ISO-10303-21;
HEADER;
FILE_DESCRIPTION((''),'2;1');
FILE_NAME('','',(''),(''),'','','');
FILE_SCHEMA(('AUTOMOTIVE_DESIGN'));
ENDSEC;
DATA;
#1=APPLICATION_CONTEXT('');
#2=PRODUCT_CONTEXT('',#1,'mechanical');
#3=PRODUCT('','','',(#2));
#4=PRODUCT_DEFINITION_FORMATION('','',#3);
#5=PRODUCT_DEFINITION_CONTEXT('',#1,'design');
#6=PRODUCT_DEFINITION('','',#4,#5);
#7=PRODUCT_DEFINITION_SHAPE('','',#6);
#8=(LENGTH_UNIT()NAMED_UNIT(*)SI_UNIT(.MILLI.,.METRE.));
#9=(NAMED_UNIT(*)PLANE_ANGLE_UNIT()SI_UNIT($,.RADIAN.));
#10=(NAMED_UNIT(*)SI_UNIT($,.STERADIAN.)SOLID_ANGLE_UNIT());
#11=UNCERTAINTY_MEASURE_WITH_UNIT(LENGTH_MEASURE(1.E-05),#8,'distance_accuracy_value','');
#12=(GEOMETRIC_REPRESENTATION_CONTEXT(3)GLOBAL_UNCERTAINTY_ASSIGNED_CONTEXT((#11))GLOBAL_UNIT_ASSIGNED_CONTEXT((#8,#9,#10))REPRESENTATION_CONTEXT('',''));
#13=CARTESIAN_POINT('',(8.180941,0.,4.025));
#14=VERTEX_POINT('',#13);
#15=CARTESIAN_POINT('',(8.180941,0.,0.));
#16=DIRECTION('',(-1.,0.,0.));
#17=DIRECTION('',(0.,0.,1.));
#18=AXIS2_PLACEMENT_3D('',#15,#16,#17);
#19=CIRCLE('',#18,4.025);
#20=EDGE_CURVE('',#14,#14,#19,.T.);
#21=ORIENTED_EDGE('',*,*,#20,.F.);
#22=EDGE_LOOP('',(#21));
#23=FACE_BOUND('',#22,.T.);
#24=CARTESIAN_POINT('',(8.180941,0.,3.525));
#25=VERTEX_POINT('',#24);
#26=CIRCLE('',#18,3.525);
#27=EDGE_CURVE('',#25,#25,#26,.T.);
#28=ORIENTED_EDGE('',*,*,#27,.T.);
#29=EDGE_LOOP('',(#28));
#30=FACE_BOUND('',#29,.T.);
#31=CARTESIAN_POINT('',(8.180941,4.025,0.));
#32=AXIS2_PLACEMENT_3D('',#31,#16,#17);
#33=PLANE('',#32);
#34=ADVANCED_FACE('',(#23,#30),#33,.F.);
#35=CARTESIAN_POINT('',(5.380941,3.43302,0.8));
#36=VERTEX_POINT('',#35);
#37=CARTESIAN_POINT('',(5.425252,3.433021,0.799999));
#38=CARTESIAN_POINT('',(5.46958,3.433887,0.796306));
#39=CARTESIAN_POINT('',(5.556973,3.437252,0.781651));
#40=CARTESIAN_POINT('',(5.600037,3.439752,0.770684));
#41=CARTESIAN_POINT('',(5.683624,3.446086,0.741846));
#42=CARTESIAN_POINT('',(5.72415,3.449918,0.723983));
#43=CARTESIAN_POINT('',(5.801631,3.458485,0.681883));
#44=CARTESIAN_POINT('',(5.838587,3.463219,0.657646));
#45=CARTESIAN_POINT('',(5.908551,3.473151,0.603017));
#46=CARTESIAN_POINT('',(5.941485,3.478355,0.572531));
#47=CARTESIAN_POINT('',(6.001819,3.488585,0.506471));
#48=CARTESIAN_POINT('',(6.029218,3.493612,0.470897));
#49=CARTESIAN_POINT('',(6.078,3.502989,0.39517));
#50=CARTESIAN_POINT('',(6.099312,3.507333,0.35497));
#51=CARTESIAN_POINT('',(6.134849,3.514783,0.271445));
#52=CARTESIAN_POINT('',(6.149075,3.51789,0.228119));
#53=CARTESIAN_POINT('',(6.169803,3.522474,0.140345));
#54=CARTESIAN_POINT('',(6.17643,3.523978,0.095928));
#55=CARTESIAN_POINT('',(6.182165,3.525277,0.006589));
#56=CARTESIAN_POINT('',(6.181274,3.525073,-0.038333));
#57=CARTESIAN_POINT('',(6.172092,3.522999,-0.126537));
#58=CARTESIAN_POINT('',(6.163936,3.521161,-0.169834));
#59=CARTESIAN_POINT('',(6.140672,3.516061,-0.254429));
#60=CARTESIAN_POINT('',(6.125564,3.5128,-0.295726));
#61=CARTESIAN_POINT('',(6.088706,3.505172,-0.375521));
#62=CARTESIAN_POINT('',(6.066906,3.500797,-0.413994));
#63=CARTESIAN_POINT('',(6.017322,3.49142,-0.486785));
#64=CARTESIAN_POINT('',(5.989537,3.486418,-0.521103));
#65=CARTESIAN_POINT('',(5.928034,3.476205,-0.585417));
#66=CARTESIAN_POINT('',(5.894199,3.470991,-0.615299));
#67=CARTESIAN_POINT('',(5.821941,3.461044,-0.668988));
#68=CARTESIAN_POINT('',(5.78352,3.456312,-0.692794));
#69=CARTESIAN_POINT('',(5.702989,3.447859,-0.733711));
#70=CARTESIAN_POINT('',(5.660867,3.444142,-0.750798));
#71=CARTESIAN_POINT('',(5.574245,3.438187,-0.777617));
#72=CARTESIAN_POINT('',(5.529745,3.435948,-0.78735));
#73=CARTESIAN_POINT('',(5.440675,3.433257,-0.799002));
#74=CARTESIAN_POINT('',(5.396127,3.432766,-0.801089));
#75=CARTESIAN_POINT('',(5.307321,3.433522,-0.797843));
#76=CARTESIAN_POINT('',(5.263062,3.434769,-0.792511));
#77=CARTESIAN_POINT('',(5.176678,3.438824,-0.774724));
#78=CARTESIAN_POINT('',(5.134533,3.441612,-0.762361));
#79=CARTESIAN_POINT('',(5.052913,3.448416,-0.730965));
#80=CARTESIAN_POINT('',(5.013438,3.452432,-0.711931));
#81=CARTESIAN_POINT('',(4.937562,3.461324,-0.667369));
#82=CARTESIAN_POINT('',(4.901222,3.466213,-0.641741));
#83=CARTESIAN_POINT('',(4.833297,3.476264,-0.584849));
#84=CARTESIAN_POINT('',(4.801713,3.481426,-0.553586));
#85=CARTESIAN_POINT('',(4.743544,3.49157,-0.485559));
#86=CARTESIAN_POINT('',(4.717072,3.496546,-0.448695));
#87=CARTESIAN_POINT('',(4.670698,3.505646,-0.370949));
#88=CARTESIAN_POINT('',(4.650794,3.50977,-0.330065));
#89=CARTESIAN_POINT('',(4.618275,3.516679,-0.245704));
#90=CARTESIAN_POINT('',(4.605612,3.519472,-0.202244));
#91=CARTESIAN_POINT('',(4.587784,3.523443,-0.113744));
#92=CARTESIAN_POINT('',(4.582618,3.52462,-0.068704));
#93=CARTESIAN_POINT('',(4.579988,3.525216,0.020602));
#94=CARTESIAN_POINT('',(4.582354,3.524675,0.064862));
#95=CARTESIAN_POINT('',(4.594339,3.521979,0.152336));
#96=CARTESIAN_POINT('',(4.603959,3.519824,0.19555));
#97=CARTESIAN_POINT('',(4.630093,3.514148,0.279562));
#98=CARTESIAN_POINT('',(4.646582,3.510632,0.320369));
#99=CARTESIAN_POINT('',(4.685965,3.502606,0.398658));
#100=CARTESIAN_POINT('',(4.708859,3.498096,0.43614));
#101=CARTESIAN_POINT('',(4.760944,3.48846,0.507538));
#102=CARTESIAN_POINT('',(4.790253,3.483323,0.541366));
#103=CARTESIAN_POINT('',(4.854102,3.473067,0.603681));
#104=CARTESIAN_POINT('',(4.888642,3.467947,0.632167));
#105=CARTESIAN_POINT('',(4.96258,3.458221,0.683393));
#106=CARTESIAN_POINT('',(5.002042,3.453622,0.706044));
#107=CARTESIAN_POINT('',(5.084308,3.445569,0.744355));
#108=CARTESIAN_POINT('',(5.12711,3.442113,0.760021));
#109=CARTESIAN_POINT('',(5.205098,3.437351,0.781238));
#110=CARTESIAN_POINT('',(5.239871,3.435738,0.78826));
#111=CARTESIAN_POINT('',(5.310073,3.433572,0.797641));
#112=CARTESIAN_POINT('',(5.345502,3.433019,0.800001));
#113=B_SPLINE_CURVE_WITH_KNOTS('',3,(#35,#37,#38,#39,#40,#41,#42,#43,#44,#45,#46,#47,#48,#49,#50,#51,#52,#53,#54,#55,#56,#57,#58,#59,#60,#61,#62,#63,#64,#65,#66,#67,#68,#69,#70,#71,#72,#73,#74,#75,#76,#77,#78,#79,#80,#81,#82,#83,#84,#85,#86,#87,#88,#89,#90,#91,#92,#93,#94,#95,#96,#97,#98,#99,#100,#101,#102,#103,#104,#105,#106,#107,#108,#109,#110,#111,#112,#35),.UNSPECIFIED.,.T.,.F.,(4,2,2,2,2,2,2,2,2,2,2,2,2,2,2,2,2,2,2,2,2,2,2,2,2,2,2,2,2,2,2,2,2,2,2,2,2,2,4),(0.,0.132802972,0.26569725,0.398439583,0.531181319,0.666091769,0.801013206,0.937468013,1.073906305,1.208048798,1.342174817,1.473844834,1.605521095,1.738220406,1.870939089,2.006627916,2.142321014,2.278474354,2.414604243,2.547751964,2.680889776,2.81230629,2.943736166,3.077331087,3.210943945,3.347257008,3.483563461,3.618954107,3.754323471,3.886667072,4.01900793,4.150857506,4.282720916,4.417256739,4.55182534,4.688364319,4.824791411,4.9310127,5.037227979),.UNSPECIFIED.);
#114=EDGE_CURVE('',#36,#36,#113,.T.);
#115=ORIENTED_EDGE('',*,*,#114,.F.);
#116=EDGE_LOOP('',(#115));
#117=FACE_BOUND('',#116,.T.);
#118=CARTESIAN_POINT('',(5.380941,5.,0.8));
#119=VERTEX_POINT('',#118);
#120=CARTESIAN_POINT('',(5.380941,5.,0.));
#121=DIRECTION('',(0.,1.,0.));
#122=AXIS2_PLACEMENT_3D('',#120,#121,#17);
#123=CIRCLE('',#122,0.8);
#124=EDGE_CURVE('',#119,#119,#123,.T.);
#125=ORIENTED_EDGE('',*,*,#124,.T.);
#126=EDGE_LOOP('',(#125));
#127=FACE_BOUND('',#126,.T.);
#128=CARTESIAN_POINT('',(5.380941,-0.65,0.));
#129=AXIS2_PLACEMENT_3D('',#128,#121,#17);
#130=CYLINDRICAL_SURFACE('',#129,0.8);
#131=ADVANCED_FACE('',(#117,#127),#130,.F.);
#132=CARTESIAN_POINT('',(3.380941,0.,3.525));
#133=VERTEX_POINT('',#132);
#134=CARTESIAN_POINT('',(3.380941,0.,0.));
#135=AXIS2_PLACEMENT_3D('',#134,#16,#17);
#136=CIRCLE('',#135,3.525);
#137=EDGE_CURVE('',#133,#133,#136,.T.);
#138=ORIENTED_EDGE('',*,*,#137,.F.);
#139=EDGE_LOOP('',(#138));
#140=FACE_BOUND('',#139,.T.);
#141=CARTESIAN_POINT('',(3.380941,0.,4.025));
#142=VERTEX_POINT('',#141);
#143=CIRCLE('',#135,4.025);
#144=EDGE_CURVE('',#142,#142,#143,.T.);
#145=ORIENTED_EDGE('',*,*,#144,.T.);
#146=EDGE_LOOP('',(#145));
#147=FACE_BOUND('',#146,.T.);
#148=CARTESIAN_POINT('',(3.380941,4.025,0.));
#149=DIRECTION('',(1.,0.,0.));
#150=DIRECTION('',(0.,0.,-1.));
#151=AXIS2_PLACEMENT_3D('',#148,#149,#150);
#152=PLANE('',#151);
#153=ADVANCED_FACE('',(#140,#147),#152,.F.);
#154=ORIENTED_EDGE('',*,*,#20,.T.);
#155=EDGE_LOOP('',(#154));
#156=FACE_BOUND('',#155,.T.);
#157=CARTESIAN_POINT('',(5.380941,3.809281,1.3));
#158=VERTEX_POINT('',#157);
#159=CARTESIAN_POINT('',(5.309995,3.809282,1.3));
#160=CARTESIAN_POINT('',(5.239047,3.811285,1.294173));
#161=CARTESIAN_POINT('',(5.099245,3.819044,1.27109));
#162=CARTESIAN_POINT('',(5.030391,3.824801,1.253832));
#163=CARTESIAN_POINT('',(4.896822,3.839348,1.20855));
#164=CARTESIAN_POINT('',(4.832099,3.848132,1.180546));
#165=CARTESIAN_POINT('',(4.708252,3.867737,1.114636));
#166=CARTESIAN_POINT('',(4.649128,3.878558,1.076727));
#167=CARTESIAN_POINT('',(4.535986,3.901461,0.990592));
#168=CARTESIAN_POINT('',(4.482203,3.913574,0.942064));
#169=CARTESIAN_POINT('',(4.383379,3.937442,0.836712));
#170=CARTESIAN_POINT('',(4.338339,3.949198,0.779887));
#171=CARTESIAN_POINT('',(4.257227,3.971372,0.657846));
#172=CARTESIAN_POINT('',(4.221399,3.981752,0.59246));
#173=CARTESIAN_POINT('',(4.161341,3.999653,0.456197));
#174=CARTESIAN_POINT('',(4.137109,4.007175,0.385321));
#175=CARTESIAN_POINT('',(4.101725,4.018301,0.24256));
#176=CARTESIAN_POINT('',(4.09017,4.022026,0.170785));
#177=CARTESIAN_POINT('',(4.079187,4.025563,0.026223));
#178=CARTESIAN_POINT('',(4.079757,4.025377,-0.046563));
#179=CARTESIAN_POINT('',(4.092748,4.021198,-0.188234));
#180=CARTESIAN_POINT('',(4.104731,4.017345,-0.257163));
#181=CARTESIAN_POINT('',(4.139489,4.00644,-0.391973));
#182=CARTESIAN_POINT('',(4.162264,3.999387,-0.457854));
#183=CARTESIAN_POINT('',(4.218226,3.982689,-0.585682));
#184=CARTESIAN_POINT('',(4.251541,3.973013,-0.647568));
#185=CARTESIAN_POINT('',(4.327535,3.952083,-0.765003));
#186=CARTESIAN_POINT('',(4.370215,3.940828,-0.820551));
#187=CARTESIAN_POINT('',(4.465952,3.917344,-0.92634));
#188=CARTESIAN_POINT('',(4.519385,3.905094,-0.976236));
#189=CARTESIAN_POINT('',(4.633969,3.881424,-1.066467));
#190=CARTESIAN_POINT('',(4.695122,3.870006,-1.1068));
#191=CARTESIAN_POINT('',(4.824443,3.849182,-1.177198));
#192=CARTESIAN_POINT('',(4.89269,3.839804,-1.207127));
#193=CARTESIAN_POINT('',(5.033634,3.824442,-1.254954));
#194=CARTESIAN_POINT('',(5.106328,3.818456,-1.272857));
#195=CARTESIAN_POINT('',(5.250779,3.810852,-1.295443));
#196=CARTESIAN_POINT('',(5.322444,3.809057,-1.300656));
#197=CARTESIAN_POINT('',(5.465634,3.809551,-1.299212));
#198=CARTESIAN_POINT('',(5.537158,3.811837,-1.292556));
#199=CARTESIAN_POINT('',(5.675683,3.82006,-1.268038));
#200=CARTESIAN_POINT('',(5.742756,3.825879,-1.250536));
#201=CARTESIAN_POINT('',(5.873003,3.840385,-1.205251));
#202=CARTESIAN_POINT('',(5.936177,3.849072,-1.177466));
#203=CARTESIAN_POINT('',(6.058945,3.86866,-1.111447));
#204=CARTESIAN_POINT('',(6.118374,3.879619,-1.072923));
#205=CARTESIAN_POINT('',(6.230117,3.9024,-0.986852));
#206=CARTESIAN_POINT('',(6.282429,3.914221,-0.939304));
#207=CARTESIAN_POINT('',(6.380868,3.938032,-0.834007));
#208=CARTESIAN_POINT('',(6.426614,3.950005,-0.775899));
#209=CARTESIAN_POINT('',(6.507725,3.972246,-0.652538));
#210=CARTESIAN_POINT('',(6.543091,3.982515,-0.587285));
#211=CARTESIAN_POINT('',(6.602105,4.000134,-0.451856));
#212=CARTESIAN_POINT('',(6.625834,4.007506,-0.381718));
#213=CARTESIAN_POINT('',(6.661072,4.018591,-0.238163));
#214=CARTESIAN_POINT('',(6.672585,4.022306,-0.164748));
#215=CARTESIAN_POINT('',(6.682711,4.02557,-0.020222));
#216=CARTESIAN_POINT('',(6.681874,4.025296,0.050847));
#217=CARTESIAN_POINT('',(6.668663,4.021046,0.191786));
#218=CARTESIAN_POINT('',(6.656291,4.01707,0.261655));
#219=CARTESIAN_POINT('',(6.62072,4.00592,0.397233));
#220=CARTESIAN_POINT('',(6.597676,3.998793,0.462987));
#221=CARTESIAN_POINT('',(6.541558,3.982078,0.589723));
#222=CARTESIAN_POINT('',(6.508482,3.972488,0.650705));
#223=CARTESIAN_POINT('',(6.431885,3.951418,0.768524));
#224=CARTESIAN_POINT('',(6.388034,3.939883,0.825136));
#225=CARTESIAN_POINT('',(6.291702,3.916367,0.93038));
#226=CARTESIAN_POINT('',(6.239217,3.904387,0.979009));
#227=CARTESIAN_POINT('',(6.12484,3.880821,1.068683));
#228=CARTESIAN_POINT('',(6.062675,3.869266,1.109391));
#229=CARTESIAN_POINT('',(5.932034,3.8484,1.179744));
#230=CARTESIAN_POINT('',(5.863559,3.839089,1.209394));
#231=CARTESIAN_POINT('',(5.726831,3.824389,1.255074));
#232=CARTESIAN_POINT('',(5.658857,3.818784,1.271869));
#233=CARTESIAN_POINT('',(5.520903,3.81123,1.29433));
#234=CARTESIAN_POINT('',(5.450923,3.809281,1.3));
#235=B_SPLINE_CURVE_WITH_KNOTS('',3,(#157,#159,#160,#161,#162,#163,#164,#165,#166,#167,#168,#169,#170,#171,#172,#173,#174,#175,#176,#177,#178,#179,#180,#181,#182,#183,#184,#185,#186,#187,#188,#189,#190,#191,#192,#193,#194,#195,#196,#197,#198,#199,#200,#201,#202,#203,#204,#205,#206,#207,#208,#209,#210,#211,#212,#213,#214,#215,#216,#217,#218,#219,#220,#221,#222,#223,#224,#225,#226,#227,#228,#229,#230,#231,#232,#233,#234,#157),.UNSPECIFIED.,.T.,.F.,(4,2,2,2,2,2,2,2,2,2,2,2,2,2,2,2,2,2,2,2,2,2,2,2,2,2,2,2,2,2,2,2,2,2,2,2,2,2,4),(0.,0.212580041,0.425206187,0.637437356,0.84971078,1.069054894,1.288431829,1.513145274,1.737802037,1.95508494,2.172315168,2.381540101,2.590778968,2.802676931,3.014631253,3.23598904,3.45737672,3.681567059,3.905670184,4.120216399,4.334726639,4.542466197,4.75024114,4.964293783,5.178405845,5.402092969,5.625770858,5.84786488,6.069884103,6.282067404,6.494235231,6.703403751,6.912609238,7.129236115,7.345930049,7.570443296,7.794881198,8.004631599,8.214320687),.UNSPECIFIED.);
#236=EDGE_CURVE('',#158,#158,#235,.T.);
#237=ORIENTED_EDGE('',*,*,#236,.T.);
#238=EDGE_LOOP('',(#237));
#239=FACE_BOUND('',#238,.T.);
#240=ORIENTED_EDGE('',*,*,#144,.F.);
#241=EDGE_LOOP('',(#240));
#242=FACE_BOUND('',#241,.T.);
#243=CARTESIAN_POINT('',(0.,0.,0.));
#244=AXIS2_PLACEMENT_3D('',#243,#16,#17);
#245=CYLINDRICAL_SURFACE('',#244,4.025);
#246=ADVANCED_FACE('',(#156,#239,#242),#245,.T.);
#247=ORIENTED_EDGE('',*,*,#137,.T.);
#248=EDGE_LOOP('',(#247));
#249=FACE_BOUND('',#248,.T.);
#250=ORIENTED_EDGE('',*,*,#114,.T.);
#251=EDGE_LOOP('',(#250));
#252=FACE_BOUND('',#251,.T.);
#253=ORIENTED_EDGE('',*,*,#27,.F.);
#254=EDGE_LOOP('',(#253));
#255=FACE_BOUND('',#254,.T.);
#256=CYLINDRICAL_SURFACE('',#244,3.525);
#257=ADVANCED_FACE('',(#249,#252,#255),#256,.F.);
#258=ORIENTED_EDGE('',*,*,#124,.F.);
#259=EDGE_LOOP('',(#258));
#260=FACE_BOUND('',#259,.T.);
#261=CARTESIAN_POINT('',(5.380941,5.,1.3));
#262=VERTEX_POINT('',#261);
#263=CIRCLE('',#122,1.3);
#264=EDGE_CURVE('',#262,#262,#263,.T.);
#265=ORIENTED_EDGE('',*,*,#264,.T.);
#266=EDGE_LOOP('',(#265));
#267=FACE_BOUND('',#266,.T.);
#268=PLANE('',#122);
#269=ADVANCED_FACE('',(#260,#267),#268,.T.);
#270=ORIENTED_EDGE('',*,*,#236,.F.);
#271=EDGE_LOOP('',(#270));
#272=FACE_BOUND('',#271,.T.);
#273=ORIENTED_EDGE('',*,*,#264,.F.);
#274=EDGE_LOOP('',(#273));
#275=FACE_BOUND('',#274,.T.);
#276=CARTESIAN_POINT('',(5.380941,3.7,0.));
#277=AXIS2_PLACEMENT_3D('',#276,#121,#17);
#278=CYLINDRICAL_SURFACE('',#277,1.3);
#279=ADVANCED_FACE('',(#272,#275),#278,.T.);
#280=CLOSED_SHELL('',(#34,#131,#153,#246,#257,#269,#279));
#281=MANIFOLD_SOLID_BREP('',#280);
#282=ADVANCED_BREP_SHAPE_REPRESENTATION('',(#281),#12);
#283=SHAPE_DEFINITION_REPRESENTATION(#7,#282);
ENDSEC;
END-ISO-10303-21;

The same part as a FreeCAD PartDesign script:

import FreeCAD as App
import Part
import Sketcher
from FreeCAD import Vector

doc = App.newDocument("Part")
params = doc.addObject("Spreadsheet::Sheet", "Params")
for row, (alias, value) in enumerate([
    ("sketch1_width", "4.8 mm"),
    ("sketch1_height", "0.5 mm"),
    ("revolution_angle", "360 deg"),
    ("sketch2_diameter", "2.6 mm"),
    ("pad1_length", "1.3 mm"),
    ("sketch3_diameter", "1.6 mm"),
    ("pocket1_length", "11.3 mm"),
], start=1):
    params.set(f"A{row}", alias)
    params.set(f"B{row}", "=" + value)
    params.setAlias(f"B{row}", alias)

body = doc.addObject("PartDesign::Body", "Body")

# Sketch on XY plane
sketch1 = body.newObject("Sketcher::SketchObject", "Sketch")
sketch1.AttachmentSupport = (doc.getObject("XY_Plane"), [""])
sketch1.MapMode = "FlatFace"
sketch1.addGeometry([
    Part.LineSegment(Vector(3.4, 3.5, 0), Vector(8.2, 3.5, 0)),
    Part.LineSegment(Vector(8.2, 3.5, 0), Vector(8.2, 4, 0)),
    Part.LineSegment(Vector(8.2, 4, 0), Vector(3.4, 4, 0)),
    Part.LineSegment(Vector(3.4, 4, 0), Vector(3.4, 3.5, 0)),
], False)
sketch1.addConstraint([
    Sketcher.Constraint("Coincident", 0, 2, 1, 1),
    Sketcher.Constraint("Coincident", 1, 2, 2, 1),
    Sketcher.Constraint("Coincident", 2, 2, 3, 1),
    Sketcher.Constraint("Coincident", 3, 2, 0, 1),
    Sketcher.Constraint("Horizontal", 0),
    Sketcher.Constraint("Vertical", 1),
    Sketcher.Constraint("Horizontal", 2),
    Sketcher.Constraint("Vertical", 3),
    Sketcher.Constraint("DistanceX", 0, 1, 0, 2, 4.8),
    Sketcher.Constraint("DistanceY", 1, 1, 1, 2, 0.5),
    Sketcher.Constraint("DistanceY", -1, 1, 0, 2, 3.525),
    Sketcher.Constraint("DistanceX", -1, 1, 0, 2, 8.180941),
])
sketch1.setExpression("Constraints[8]", "Params.sketch1_width")
sketch1.setExpression("Constraints[9]", "Params.sketch1_height")
revolution = body.newObject("PartDesign::Revolution", "Revolution")
revolution.Profile = sketch1
revolution.ReferenceAxis = (sketch1, ["H_Axis"])
revolution.setExpression("Angle", "Params.revolution_angle")

# Sketch on XZ plane
sketch2 = body.newObject("Sketcher::SketchObject", "Sketch001")
sketch2.AttachmentSupport = (doc.getObject("XZ_Plane"), [""])
sketch2.MapMode = "FlatFace"
sketch2.AttachmentOffset = App.Placement(Vector(0, 0, -5), App.Rotation())
sketch2.addGeometry(Part.Circle(Vector(5.4, 0, 0), Vector(0, 0, 1), 1.3), False)
sketch2.addConstraint([
    Sketcher.Constraint("PointOnObject", 0, 3, -1),
    Sketcher.Constraint("Diameter", 0, 2.6),
    Sketcher.Constraint("DistanceX", -1, 1, 0, 3, 5.380941),
])
sketch2.setExpression("Constraints[1]", "Params.sketch2_diameter")
pad1 = body.newObject("PartDesign::Pad", "Pad")
pad1.Profile = sketch2
pad1.setExpression("Length", "Params.pad1_length")

# Sketch on XZ plane
sketch3 = body.newObject("Sketcher::SketchObject", "Sketch002")
sketch3.AttachmentSupport = (doc.getObject("XZ_Plane"), [""])
sketch3.MapMode = "FlatFace"
sketch3.AttachmentOffset = App.Placement(Vector(0, 0, -5), App.Rotation())
sketch3.addGeometry(Part.Circle(Vector(5.4, 0, 0), Vector(0, 0, 1), 0.8), False)
sketch3.addConstraint([
    Sketcher.Constraint("PointOnObject", 0, 3, -1),
    Sketcher.Constraint("Diameter", 0, 1.6),
    Sketcher.Constraint("DistanceX", -1, 1, 0, 3, 5.380941),
])
sketch3.setExpression("Constraints[1]", "Params.sketch3_diameter")
pocket1 = body.newObject("PartDesign::Pocket", "Pocket")
pocket1.Profile = sketch3
pocket1.setExpression("Length", "Params.pocket1_length")
pocket1.Midplane = True

doc.recompute()
